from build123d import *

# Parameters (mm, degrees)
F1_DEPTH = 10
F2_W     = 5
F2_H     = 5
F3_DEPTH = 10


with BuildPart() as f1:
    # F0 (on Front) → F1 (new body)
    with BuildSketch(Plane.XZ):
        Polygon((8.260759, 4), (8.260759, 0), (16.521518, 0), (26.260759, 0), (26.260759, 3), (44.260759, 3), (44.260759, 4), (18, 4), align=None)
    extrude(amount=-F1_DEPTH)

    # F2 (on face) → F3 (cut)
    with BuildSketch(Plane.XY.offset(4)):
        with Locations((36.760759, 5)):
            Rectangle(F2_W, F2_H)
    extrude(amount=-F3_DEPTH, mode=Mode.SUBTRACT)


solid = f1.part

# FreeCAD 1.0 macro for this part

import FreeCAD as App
import Part
import Sketcher
Q = App.Units.Quantity


def add_polygon(sketch, points):
    """Adds a closed chain of lines whose ends are joined by coincident constraints."""
    first, n = sketch.GeometryCount, len(points)
    for a, b in zip(points, points[1:] + points[:1]):
        sketch.addGeometry(Part.LineSegment(App.Vector(*a, 0), App.Vector(*b, 0)), False)
    for i in range(n):
        sketch.addConstraint(Sketcher.Constraint("Coincident", first + i, 2, first + (i + 1) % n, 1))

doc = App.newDocument("Part")
params = doc.addObject("Spreadsheet::Sheet", "Params")
for row, (alias, value) in enumerate([
    ("sketch1_width", "18 mm"),
    ("sketch1_height", "4 mm"),
    ("sketch1_height2", "3 mm"),
    ("pad1_length", "10 mm"),
    ("sketch2_width", "5 mm"),
    ("pocket1_length", "10 mm"),
], start=1):
    params.set(f"A{row}", alias)
    params.set(f"B{row}", "=" + value)
    params.setAlias(f"B{row}", alias)

body = doc.addObject("PartDesign::Body", "Body")

sketch1 = body.newObject("Sketcher::SketchObject", "Sketch")
sketch1.AttachmentSupport = (doc.getObject("XZ_Plane"), [""])
sketch1.MapMode = "FlatFace"
add_polygon(sketch1, [(8.3, 4), (8.3, 0), (26.3, 0), (26.3, 3), (44.3, 3), (44.3, 4)])
sketch1.addConstraint(Sketcher.Constraint("Vertical", 0))
sketch1.addConstraint(Sketcher.Constraint("Horizontal", 1))
sketch1.addConstraint(Sketcher.Constraint("Vertical", 2))
sketch1.addConstraint(Sketcher.Constraint("Horizontal", 3))
sketch1.addConstraint(Sketcher.Constraint("Vertical", 4))
sketch1.addConstraint(Sketcher.Constraint("Horizontal", 5))
sketch1.addConstraint(Sketcher.Constraint("PointOnObject", 0, 2, -1))
sketch1.addConstraint(Sketcher.Constraint("Equal", 1, 3))
sketch1.addConstraint(Sketcher.Constraint("DistanceX", 1, 1, 1, 2, Q("18 mm")))
sketch1.addConstraint(Sketcher.Constraint("DistanceY", 0, 2, 0, 1, Q("4 mm")))
sketch1.addConstraint(Sketcher.Constraint("DistanceY", 2, 1, 2, 2, Q("3 mm")))
sketch1.addConstraint(Sketcher.Constraint("DistanceX", -1, 1, 0, 2, Q("8.260759 mm")))
sketch1.setExpression("Constraints[14]", "Params.sketch1_width")
sketch1.setExpression("Constraints[15]", "Params.sketch1_height")
sketch1.setExpression("Constraints[16]", "Params.sketch1_height2")
pad1 = body.newObject("PartDesign::Pad", "Pad")
pad1.Profile = sketch1
pad1.setExpression("Length", "Params.pad1_length")
pad1.Reversed = True

sketch2 = body.newObject("Sketcher::SketchObject", "Sketch001")
sketch2.AttachmentSupport = (doc.getObject("XY_Plane"), [""])
sketch2.MapMode = "FlatFace"
sketch2.AttachmentOffset = App.Placement(App.Vector(0, 0, 4), App.Rotation())
add_polygon(sketch2, [(34, 8), (34, 2), (39, 2), (39, 8)])
sketch2.addConstraint(Sketcher.Constraint("Vertical", 0))
sketch2.addConstraint(Sketcher.Constraint("Horizontal", 1))
sketch2.addConstraint(Sketcher.Constraint("Vertical", 2))
sketch2.addConstraint(Sketcher.Constraint("Horizontal", 3))
sketch2.addConstraint(Sketcher.Constraint("Equal", 3, 0))
sketch2.addConstraint(Sketcher.Constraint("DistanceX", 1, 1, 1, 2, Q("5 mm")))
sketch2.addConstraint(Sketcher.Constraint("DistanceY", -1, 1, 0, 2, Q("2.5 mm")))
sketch2.addConstraint(Sketcher.Constraint("DistanceX", -1, 1, 0, 2, Q("34.260759 mm")))
sketch2.setExpression("Constraints[9]", "Params.sketch2_width")
pocket1 = body.newObject("PartDesign::Pocket", "Pocket")
pocket1.Profile = sketch2
pocket1.setExpression("Length", "Params.pocket1_length")

doc.recompute()
